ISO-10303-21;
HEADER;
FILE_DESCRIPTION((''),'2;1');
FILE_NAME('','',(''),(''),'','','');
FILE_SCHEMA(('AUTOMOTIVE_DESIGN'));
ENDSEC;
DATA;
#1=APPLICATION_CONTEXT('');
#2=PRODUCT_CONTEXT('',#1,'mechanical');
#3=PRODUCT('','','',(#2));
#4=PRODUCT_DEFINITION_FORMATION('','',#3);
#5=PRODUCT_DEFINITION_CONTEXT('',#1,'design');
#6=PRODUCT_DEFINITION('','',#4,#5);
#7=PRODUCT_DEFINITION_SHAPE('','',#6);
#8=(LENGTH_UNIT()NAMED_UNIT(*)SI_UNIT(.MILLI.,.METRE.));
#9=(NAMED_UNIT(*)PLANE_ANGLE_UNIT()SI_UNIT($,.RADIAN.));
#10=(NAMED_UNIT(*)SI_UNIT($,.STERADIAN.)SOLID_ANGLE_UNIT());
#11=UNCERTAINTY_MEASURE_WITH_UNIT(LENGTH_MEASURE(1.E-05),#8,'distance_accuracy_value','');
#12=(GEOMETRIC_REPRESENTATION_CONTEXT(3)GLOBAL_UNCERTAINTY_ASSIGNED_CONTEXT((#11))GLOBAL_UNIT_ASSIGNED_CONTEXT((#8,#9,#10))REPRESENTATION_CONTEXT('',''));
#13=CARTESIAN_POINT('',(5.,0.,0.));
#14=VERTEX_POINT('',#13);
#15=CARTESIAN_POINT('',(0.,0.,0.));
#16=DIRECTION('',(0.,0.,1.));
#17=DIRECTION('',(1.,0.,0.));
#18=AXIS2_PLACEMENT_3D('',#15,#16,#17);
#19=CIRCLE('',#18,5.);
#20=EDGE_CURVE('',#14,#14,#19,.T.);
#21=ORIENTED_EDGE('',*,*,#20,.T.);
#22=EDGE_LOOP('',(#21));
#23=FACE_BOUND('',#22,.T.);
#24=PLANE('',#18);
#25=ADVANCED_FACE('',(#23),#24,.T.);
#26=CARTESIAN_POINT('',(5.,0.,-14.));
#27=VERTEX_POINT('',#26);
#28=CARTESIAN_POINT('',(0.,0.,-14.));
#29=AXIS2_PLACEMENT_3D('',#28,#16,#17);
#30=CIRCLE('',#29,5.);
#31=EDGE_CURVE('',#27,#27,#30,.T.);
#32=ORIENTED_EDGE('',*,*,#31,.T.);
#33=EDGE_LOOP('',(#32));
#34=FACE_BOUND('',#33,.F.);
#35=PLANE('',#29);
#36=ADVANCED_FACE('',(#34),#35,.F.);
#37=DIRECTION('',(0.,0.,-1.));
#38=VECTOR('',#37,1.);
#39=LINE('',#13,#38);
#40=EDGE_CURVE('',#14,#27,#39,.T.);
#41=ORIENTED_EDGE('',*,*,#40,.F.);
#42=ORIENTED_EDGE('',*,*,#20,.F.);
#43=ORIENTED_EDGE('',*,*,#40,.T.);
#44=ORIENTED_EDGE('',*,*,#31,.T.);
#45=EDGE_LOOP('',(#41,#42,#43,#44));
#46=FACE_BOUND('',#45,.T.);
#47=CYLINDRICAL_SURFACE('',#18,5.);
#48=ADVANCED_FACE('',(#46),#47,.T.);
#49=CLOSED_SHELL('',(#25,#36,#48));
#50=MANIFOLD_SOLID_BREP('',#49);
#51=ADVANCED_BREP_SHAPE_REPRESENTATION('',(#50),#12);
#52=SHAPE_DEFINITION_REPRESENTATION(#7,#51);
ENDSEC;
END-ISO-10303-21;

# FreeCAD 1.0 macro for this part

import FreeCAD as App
import Part
import Sketcher
from FreeCAD import Vector

doc = App.newDocument("Part")
body = doc.addObject("PartDesign::Body", "Body")

# Sketch on XY plane
sketch1 = doc.addObject("Sketcher::SketchObject", "Sketch")
body.addObject(sketch1)
sketch1.AttachmentSupport = (doc.XY_Plane, [""])
sketch1.MapMode = "FlatFace"
sketch1.addGeometry(Part.Circle(Vector(0, 0, 0), Vector(0, 0, 1), 5), False)
sketch1.addConstraint(Sketcher.Constraint("Coincident", 0, 3, -1, 1))
sketch1.addConstraint(Sketcher.Constraint("Diameter", 0, 10.0))
pad1 = doc.addObject("PartDesign::Pad", "Pad")
body.addObject(pad1)
pad1.Profile = sketch1
pad1.Length = 14
pad1.Reversed = True

doc.recompute()
